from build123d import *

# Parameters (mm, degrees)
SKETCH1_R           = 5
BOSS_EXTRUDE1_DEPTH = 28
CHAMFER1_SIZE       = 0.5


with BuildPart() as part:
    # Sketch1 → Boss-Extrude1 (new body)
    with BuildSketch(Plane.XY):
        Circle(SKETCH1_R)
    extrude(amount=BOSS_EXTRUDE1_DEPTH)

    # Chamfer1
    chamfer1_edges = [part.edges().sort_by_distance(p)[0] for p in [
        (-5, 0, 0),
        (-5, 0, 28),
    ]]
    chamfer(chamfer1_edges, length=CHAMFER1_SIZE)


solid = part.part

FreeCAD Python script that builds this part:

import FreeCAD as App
import Part
import Sketcher

V = App.Vector
Q = App.Units.Quantity


def edges_at(feature, points):
    """Names of the edges that pass closest to the given points."""
    edges = feature.Shape.Edges
    near = lambda p: min(range(len(edges)), key=lambda i: edges[i].distToShape(Part.Vertex(*p))[0])
    return sorted({f"Edge{near(p) + 1}" for p in points})

doc = App.newDocument("Part")
body = doc.addObject("PartDesign::Body", "Body")

sketch1 = body.newObject("Sketcher::SketchObject", "Sketch")
sketch1.AttachmentSupport = (doc.getObject("XY_Plane"), [""])
sketch1.MapMode = "FlatFace"
sketch1.addGeometry(Part.Circle(V(0, 0, 0), V(0, 0, 1), 5), False)
sketch1.addConstraint(Sketcher.Constraint("Coincident", 0, 3, -1, 1))
sketch1.addConstraint(Sketcher.Constraint("Diameter", 0, Q("10 mm")))
pad1 = body.newObject("PartDesign::Pad", "Pad")
pad1.Profile = sketch1
pad1.Length = 28
doc.recompute()

chamfer = body.newObject("PartDesign::Chamfer", "Chamfer")
chamfer.Base = (pad1, edges_at(pad1, [(-5, 0, 0), (-5, 0, 28)]))
chamfer.Size = 0.5

doc.recompute()
